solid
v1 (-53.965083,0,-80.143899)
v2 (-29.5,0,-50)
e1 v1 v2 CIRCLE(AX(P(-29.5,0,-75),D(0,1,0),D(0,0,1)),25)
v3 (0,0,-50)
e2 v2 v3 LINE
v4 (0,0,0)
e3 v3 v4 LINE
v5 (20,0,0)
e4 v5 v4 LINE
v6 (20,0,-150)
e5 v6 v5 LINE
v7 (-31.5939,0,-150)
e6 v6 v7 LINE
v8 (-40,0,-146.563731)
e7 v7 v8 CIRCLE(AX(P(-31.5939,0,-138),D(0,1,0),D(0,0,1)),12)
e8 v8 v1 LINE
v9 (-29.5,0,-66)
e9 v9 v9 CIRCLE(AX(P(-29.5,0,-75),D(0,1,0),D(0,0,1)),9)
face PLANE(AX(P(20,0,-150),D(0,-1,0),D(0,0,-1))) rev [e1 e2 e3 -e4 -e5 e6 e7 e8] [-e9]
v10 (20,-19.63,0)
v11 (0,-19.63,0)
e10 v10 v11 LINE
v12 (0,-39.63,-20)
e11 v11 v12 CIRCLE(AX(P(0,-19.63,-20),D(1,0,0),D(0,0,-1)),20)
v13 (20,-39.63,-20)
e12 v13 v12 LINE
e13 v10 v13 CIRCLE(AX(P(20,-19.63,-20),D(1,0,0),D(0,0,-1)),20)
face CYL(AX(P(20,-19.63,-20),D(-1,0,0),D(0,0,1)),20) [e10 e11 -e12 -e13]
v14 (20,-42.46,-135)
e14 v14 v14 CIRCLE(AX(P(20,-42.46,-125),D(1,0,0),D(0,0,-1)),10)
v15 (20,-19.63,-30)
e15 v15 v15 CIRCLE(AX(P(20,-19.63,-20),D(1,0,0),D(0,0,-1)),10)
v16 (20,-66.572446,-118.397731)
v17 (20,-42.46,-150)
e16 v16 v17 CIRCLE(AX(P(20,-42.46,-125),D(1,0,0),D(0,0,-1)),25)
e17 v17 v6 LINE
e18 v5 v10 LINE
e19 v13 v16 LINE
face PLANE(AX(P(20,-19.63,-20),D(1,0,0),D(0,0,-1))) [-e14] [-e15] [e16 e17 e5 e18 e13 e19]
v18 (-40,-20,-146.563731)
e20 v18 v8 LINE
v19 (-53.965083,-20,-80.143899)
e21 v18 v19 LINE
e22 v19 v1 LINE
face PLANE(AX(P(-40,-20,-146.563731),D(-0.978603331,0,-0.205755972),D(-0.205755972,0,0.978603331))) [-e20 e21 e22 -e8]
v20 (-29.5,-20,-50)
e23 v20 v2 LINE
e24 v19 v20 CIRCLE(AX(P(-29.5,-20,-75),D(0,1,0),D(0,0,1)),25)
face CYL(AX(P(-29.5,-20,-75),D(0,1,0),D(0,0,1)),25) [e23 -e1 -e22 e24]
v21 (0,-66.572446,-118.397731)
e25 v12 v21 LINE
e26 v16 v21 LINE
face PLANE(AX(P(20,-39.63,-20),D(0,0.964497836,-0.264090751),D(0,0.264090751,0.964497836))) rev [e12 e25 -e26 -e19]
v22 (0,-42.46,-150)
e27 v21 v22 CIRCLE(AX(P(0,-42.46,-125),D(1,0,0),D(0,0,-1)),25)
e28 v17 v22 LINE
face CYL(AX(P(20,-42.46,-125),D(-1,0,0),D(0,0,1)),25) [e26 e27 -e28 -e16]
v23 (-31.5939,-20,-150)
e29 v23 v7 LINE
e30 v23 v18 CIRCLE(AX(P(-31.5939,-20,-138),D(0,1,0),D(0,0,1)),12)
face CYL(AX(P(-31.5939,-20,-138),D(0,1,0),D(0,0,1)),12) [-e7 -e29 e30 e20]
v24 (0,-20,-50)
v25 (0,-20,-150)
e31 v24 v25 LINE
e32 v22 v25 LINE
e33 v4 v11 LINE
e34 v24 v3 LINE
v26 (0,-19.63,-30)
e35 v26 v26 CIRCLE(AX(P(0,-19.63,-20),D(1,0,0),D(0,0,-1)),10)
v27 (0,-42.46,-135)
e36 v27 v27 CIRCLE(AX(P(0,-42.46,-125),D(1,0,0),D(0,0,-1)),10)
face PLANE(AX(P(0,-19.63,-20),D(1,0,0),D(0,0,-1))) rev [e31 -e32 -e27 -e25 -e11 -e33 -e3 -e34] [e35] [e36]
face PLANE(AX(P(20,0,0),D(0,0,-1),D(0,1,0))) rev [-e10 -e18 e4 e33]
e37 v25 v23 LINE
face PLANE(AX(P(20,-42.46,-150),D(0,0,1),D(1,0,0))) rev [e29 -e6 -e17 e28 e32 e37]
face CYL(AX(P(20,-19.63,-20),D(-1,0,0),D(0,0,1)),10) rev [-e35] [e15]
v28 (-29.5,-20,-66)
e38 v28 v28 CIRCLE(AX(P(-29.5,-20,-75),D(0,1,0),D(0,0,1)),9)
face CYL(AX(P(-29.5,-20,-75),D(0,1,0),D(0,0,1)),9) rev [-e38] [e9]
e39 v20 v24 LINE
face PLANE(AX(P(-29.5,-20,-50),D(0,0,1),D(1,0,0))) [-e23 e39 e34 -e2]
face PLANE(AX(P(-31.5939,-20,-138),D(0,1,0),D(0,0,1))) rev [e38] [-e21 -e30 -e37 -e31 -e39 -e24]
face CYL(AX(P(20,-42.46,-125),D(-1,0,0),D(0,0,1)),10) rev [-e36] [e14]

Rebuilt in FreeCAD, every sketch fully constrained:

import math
import FreeCAD as App
import Part
import Sketcher
from FreeCAD import Vector

doc = App.newDocument("Part")
body = doc.addObject("PartDesign::Body", "Body")

sketch1 = body.newObject("Sketcher::SketchObject", "Sketch")
sketch1.AttachmentSupport = (doc.getObject("YZ_Plane"), [""])
sketch1.MapMode = "FlatFace"
sketch1.addGeometry(Part.LineSegment(Vector(0, 0, 0), Vector(-20, 0, 0)), False)
sketch1.addGeometry(Part.ArcOfCircle(Part.Circle(Vector(-20, -20, 0), Vector(0, 0, 1), 20), math.radians(90), math.radians(180)), False)
sketch1.addGeometry(Part.LineSegment(Vector(-40, -20, 0), Vector(-67, -118, 0)), False)
sketch1.addGeometry(Part.ArcOfCircle(Part.Circle(Vector(-42, -125, 0), Vector(0, 0, 1), 25), math.radians(165), math.radians(270)), False)
sketch1.addGeometry(Part.LineSegment(Vector(-42, -150, 0), Vector(0, -150, 0)), False)
sketch1.addGeometry(Part.LineSegment(Vector(0, -150, 0), Vector(0, 0, 0)), False)
sketch1.addGeometry(Part.Circle(Vector(-42, -125, 0), Vector(0, 0, 1), 10), False)
sketch1.addGeometry(Part.Circle(Vector(-20, -20, 0), Vector(0, 0, 1), 10), False)
sketch1.addConstraint(Sketcher.Constraint("Tangent", 0, 2, 1, 1))
sketch1.addConstraint(Sketcher.Constraint("Coincident", 1, 2, 2, 1))
sketch1.addConstraint(Sketcher.Constraint("Tangent", 2, 2, 3, 1))
sketch1.addConstraint(Sketcher.Constraint("Tangent", 3, 2, 4, 1))
sketch1.addConstraint(Sketcher.Constraint("Coincident", 4, 2, 5, 1))
sketch1.addConstraint(Sketcher.Constraint("Coincident", 5, 2, 0, 1))
sketch1.addConstraint(Sketcher.Constraint("Horizontal", 0))
sketch1.addConstraint(Sketcher.Constraint("Horizontal", 4))
sketch1.addConstraint(Sketcher.Constraint("Vertical", 5))
sketch1.addConstraint(Sketcher.Constraint("Coincident", 5, 2, -1, 1))
sketch1.addConstraint(Sketcher.Constraint("Coincident", 6, 3, 3, 3))
sketch1.addConstraint(Sketcher.Constraint("Coincident", 7, 3, 1, 3))
sketch1.addConstraint(Sketcher.Constraint("Equal", 6, 7))
sketch1.addConstraint(Sketcher.Constraint("Horizontal", 7, 3, 1, 2))
sketch1.addConstraint(Sketcher.Constraint("Diameter", 6, 20.0))
sketch1.addConstraint(Sketcher.Constraint("Radius", 1, 20.0))
sketch1.addConstraint(Sketcher.Constraint("Radius", 3, 25.0))
sketch1.addConstraint(Sketcher.Constraint("DistanceY", 5, 1, 5, 2, 150.0))
sketch1.addConstraint(Sketcher.Constraint("DistanceX", 0, 2, 0, 1, 19.63))
sketch1.addConstraint(Sketcher.Constraint("DistanceX", 4, 1, 4, 2, 42.46))
pad1 = body.newObject("PartDesign::Pad", "Pad")
pad1.Profile = sketch1
pad1.Length = 20

sketch2 = body.newObject("Sketcher::SketchObject", "Sketch001")
sketch2.AttachmentSupport = (doc.getObject("XZ_Plane"), [""])
sketch2.MapMode = "FlatFace"
sketch2.addGeometry(Part.LineSegment(Vector(0, -150, 0), Vector(-32, -150, 0)), False)
sketch2.addGeometry(Part.ArcOfCircle(Part.Circle(Vector(-32, -138, 0), Vector(0, 0, 1), 12), math.radians(-134), math.radians(-90)), False)
sketch2.addGeometry(Part.LineSegment(Vector(-40, -147, 0), Vector(-54, -80, 0)), False)
sketch2.addGeometry(Part.ArcOfCircle(Part.Circle(Vector(-30, -75, 0), Vector(0, 0, 1), 25), math.radians(90), math.radians(192)), False)
sketch2.addGeometry(Part.LineSegment(Vector(-30, -50, 0), Vector(0, -50, 0)), False)
sketch2.addGeometry(Part.LineSegment(Vector(0, -50, 0), Vector(0, -150, 0)), False)
sketch2.addGeometry(Part.Circle(Vector(-30, -75, 0), Vector(0, 0, 1), 9), False)
sketch2.addConstraint(Sketcher.Constraint("Tangent", 0, 2, 1, 2))
sketch2.addConstraint(Sketcher.Constraint("Coincident", 1, 1, 2, 1))
sketch2.addConstraint(Sketcher.Constraint("Tangent", 2, 2, 3, 2))
sketch2.addConstraint(Sketcher.Constraint("Tangent", 3, 1, 4, 1))
sketch2.addConstraint(Sketcher.Constraint("Coincident", 4, 2, 5, 1))
sketch2.addConstraint(Sketcher.Constraint("Coincident", 5, 2, 0, 1))
sketch2.addConstraint(Sketcher.Constraint("Horizontal", 0))
sketch2.addConstraint(Sketcher.Constraint("Horizontal", 4))
sketch2.addConstraint(Sketcher.Constraint("Vertical", 5))
sketch2.addConstraint(Sketcher.Constraint("Coincident", 6, 3, 3, 3))
sketch2.addConstraint(Sketcher.Constraint("PointOnObject", 4, 2, -2))
sketch2.addConstraint(Sketcher.Constraint("Diameter", 6, 18.0))
sketch2.addConstraint(Sketcher.Constraint("Radius", 1, 12.0))
sketch2.addConstraint(Sketcher.Constraint("Radius", 3, 25.0))
sketch2.addConstraint(Sketcher.Constraint("DistanceY", 5, 2, 5, 1, 100.0))
sketch2.addConstraint(Sketcher.Constraint("DistanceX", 4, 1, 4, 2, 29.5))
sketch2.addConstraint(Sketcher.Constraint("DistanceY", 1, 3, -1, 1, 138.0))
sketch2.addConstraint(Sketcher.Constraint("DistanceX", 1, 1, -1, 1, 40.0))
sketch2.addConstraint(Sketcher.Constraint("DistanceX", 0, 2, 0, 1, 31.5939))
pad2 = body.newObject("PartDesign::Pad", "Pad001")
pad2.Profile = sketch2
pad2.Length = 20

doc.recompute()
